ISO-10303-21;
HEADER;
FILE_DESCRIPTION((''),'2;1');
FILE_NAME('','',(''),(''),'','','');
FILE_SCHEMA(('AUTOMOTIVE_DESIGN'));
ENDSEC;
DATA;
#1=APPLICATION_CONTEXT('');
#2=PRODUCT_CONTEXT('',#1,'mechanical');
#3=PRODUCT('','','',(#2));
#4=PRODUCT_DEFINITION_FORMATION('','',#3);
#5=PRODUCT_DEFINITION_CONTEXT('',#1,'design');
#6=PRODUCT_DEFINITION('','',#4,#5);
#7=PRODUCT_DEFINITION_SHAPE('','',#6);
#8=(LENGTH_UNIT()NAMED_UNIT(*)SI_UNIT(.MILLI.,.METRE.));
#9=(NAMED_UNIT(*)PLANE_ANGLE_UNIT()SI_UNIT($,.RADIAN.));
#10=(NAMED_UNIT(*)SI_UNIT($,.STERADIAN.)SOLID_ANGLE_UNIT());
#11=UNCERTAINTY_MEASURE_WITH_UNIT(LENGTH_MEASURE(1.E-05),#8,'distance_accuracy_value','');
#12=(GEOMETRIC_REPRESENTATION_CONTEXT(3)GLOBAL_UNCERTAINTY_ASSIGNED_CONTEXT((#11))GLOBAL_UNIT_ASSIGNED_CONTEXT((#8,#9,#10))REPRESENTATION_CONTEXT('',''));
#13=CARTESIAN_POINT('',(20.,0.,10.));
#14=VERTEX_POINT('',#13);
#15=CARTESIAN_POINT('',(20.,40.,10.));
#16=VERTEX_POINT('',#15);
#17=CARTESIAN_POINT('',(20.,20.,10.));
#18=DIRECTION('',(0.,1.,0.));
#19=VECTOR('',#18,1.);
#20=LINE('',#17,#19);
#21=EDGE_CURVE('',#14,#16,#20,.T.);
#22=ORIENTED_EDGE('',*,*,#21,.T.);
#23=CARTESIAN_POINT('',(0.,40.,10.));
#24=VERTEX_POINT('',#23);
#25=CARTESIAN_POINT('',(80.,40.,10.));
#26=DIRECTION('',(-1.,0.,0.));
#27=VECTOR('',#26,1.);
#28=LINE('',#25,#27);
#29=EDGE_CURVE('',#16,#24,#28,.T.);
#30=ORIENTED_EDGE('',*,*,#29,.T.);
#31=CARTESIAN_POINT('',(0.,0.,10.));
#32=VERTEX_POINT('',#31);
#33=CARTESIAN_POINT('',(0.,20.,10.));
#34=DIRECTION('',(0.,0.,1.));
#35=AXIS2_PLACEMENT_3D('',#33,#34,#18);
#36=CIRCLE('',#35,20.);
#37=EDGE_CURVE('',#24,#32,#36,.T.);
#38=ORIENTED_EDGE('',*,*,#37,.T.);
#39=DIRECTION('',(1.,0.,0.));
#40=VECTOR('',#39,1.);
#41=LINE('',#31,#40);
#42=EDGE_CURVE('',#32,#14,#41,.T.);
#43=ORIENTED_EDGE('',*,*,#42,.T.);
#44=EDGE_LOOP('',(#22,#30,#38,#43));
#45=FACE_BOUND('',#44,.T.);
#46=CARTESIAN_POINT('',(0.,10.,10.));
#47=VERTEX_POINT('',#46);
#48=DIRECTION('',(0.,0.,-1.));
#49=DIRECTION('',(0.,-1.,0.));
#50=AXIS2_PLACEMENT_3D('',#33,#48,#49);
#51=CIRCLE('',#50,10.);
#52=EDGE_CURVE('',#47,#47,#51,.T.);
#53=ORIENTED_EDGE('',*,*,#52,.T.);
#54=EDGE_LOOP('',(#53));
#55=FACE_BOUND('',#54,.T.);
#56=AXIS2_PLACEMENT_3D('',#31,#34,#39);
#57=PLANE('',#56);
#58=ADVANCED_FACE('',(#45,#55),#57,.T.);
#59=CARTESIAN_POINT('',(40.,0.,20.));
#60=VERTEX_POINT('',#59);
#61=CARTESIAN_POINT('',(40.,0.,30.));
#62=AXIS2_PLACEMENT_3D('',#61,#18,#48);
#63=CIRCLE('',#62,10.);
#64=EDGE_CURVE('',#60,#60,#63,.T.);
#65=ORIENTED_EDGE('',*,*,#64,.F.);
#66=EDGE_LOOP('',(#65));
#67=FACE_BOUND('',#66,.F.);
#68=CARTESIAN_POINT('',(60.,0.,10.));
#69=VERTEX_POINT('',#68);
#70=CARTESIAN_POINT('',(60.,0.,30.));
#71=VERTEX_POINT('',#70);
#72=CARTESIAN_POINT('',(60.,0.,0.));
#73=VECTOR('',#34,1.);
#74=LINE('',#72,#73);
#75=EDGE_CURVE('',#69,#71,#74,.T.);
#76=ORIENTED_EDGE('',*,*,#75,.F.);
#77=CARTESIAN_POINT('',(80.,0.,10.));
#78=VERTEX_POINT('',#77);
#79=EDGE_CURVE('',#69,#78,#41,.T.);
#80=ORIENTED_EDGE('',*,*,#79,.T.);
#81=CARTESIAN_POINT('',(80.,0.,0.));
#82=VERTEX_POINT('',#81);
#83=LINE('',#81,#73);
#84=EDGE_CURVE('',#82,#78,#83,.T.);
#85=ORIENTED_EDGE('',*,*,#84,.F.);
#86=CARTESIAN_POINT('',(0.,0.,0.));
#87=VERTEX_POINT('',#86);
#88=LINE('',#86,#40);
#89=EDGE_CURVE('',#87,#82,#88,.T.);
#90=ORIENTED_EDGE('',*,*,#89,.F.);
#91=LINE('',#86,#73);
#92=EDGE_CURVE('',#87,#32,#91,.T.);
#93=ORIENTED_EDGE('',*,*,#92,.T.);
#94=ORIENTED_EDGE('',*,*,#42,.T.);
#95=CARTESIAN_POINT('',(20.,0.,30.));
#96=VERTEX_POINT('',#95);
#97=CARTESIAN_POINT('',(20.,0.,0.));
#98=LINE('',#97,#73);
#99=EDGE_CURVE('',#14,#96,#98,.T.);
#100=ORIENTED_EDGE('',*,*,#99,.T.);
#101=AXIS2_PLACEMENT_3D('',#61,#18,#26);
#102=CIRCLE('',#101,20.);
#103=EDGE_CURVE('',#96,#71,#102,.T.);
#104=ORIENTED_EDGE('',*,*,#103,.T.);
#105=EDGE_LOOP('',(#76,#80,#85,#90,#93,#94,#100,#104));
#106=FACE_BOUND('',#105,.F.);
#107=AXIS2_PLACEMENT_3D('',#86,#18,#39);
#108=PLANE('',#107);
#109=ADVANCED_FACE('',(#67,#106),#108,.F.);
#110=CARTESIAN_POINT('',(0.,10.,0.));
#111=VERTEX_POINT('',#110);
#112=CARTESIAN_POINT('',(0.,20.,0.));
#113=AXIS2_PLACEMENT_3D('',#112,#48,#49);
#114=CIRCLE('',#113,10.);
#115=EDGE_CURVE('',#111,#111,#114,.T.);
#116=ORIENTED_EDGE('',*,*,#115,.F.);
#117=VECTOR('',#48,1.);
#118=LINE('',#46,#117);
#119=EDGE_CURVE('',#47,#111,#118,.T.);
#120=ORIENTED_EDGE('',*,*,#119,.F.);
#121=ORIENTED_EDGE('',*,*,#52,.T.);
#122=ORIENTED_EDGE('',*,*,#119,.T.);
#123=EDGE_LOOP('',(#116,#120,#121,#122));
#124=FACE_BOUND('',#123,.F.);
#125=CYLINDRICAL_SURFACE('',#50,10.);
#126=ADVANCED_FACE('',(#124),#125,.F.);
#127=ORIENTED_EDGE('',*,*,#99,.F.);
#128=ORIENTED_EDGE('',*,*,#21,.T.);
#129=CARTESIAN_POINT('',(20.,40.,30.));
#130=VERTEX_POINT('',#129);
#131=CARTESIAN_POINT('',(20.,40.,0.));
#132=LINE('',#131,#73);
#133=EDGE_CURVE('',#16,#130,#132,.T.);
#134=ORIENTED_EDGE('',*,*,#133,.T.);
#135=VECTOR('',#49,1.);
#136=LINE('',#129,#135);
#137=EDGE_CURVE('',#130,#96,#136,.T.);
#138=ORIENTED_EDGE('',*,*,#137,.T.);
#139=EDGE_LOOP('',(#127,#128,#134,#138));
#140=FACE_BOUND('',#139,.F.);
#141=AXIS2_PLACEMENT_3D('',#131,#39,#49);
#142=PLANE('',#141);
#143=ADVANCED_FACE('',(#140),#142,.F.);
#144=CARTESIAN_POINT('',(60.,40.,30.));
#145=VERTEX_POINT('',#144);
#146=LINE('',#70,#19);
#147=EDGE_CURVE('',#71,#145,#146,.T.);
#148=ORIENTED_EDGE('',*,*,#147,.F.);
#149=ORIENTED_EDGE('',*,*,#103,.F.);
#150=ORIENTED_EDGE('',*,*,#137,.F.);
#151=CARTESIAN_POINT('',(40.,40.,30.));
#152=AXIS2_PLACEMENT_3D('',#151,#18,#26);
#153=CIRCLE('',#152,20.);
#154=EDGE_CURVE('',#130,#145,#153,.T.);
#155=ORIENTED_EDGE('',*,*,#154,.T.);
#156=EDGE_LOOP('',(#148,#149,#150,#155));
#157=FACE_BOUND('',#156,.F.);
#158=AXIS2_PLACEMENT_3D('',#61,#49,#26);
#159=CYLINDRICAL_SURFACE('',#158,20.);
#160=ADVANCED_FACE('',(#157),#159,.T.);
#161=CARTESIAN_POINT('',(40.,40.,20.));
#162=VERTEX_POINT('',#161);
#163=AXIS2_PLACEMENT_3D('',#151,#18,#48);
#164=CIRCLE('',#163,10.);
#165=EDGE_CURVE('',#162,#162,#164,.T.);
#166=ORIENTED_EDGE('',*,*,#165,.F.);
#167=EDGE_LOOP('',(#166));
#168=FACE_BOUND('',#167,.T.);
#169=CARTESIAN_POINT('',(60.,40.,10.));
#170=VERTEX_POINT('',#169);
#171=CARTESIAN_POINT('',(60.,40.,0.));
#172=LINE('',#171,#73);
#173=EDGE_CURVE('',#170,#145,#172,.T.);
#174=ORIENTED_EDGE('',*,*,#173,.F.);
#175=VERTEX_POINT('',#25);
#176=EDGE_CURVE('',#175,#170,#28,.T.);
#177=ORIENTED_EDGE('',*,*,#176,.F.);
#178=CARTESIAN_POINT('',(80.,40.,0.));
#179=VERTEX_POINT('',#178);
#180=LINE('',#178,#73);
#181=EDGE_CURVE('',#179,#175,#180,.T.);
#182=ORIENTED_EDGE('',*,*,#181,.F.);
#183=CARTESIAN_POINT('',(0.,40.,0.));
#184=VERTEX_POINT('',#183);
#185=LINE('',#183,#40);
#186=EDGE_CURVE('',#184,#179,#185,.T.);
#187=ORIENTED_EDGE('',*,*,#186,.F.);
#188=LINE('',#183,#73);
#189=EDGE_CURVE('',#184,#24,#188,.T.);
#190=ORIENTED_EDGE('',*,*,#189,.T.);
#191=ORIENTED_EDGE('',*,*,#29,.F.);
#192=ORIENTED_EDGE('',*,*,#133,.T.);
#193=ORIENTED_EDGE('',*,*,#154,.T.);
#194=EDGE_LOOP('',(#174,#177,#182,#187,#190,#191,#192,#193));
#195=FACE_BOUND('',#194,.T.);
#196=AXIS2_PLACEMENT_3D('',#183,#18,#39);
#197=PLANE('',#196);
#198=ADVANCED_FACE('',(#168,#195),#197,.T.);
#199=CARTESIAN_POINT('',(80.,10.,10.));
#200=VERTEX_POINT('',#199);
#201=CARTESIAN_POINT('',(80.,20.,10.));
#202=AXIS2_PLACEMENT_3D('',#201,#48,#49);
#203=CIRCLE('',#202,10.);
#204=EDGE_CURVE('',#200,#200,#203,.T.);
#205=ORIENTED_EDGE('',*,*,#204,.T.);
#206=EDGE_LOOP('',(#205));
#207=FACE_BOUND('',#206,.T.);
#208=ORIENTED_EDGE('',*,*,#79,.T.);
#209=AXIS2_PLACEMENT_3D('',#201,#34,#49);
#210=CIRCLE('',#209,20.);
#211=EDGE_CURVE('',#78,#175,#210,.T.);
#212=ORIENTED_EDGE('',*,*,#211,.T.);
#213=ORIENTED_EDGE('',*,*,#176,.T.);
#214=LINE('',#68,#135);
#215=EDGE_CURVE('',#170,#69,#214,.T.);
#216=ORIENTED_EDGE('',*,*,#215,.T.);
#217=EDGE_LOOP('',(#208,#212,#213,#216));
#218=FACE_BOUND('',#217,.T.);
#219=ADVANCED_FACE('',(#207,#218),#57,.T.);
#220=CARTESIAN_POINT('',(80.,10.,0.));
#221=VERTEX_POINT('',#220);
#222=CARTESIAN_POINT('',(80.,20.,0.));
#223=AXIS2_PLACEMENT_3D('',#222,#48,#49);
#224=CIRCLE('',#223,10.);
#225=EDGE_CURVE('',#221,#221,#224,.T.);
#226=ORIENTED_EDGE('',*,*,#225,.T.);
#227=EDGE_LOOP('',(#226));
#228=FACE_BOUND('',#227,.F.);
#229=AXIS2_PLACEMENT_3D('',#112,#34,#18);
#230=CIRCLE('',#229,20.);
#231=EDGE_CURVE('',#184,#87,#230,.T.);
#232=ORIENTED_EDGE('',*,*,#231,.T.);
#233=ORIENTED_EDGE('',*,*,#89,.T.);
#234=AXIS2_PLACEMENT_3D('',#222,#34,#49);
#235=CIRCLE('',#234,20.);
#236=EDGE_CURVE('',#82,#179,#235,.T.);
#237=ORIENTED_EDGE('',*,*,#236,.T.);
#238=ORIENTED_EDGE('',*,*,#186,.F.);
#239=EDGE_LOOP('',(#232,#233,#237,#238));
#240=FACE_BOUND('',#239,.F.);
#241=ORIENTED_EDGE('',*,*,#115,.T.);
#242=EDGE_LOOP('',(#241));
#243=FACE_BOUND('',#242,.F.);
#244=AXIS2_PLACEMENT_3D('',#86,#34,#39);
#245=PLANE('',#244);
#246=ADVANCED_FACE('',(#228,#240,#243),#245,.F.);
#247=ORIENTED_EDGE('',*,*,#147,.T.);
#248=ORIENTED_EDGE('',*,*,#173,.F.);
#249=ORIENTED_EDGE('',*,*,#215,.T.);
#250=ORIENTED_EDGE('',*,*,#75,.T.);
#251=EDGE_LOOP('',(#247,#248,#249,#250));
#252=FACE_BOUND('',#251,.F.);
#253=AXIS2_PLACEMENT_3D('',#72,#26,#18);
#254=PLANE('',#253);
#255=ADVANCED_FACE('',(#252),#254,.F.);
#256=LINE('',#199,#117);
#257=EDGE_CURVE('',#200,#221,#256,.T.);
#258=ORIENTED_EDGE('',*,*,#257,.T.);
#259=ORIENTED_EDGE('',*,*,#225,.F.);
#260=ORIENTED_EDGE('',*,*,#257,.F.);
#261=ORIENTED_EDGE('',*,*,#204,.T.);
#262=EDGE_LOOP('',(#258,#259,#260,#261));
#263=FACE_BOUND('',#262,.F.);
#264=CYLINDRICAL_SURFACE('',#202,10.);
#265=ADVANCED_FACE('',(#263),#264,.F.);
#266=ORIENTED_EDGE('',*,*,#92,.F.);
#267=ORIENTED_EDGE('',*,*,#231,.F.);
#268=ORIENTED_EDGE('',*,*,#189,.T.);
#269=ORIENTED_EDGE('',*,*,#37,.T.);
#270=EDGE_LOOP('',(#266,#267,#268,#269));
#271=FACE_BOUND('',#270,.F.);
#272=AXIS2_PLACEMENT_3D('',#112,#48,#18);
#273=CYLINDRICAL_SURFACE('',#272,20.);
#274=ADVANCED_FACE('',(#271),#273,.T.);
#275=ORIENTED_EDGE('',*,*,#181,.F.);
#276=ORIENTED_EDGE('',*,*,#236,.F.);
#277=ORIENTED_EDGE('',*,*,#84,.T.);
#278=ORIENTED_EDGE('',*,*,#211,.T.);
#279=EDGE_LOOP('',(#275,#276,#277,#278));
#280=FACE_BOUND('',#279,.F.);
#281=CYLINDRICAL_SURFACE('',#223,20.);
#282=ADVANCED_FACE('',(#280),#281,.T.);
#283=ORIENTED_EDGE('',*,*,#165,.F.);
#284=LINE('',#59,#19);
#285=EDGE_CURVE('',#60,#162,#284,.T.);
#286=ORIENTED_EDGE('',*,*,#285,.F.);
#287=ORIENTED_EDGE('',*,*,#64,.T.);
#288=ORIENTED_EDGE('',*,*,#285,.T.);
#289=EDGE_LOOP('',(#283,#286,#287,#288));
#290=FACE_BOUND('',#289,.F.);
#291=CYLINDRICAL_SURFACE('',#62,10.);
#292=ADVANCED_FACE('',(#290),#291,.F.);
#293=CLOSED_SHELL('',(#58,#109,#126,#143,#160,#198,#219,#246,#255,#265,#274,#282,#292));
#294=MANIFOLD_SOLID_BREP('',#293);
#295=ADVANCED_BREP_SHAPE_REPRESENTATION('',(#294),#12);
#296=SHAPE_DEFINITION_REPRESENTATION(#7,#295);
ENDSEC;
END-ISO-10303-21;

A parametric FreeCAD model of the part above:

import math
import FreeCAD as App
import Part
import Sketcher
from FreeCAD import Vector
Q = App.Units.Quantity

doc = App.newDocument("Part")
body = doc.addObject("PartDesign::Body", "Body")

sketch1 = body.newObject("Sketcher::SketchObject", "Sketch")
sketch1.AttachmentSupport = (doc.getObject("XY_Plane"), [""])
sketch1.MapMode = "FlatFace"
sketch1.addGeometry([
    Part.ArcOfCircle(Part.Circle(Vector(80, 20, 0), Vector(0, 0, 1), 20), math.radians(-90), math.radians(90)),
    Part.LineSegment(Vector(80, 40, 0), Vector(0, 40, 0)),
    Part.ArcOfCircle(Part.Circle(Vector(0, 20, 0), Vector(0, 0, 1), 20), math.radians(90), math.radians(270)),
    Part.LineSegment(Vector(0, 0, 0), Vector(80, 0, 0)),
], False)
sketch1.addConstraint([
    Sketcher.Constraint("Tangent", 0, 2, 1, 1),
    Sketcher.Constraint("Tangent", 1, 2, 2, 1),
    Sketcher.Constraint("Tangent", 2, 2, 3, 1),
    Sketcher.Constraint("Tangent", 3, 2, 0, 1),
    Sketcher.Constraint("Horizontal", 1),
    Sketcher.Constraint("Horizontal", 3),
    Sketcher.Constraint("Coincident", 2, 2, -1, 1),
    Sketcher.Constraint("Radius", 0, Q("20 mm")),
    Sketcher.Constraint("DistanceX", 1, 2, 1, 1, Q("80 mm")),
])
pad1 = body.newObject("PartDesign::Pad", "Pad")
pad1.Profile = sketch1
pad1.Length = 10

sketch2 = body.newObject("Sketcher::SketchObject", "Sketch001")
sketch2.AttachmentSupport = (doc.getObject("XY_Plane"), [""])
sketch2.MapMode = "FlatFace"
sketch2.AttachmentOffset = App.Placement(Vector(0, 0, 10), App.Rotation())
sketch2.addGeometry(Part.Circle(Vector(0, 20, 0), Vector(0, 0, 1), 10), False)
sketch2.addConstraint([
    Sketcher.Constraint("PointOnObject", 0, 3, -2),
    Sketcher.Constraint("Diameter", 0, Q("20 mm")),
    Sketcher.Constraint("DistanceY", -1, 1, 0, 3, Q("20 mm")),
])
doc.recompute()
hole = body.newObject("PartDesign::Hole", "Hole")
hole.Profile = sketch2
hole.ThreadType = "None"
hole.Diameter = 20
hole.DepthType = "Dimension"
hole.Depth = 20
hole.DrillPoint = "Angled"
hole.DrillPointAngle = 118

sketch3 = body.newObject("Sketcher::SketchObject", "Sketch002")
sketch3.AttachmentSupport = (doc.getObject("XY_Plane"), [""])
sketch3.MapMode = "FlatFace"
sketch3.AttachmentOffset = App.Placement(Vector(0, 0, 10), App.Rotation())
sketch3.addGeometry(Part.Circle(Vector(80, 20, 0), Vector(0, 0, 1), 10), False)
sketch3.addConstraint([
    Sketcher.Constraint("Diameter", 0, Q("20 mm")),
    Sketcher.Constraint("DistanceX", -1, 1, 0, 3, Q("80 mm")),
    Sketcher.Constraint("DistanceY", -1, 1, 0, 3, Q("20 mm")),
])
doc.recompute()
hole2 = body.newObject("PartDesign::Hole", "Hole001")
hole2.Profile = sketch3
hole2.ThreadType = "None"
hole2.Diameter = 20
hole2.DepthType = "Dimension"
hole2.Depth = 20
hole2.DrillPoint = "Angled"
hole2.DrillPointAngle = 118

sketch4 = body.newObject("Sketcher::SketchObject", "Sketch003")
sketch4.AttachmentSupport = (doc.getObject("XY_Plane"), [""])
sketch4.MapMode = "FlatFace"
sketch4.addGeometry([
    Part.LineSegment(Vector(20, 40, 0), Vector(20, 0, 0)),
    Part.LineSegment(Vector(20, 0, 0), Vector(60, 0, 0)),
    Part.LineSegment(Vector(60, 0, 0), Vector(60, 40, 0)),
    Part.LineSegment(Vector(60, 40, 0), Vector(20, 40, 0)),
], False)
sketch4.addConstraint([
    Sketcher.Constraint("Coincident", 0, 2, 1, 1),
    Sketcher.Constraint("Coincident", 1, 2, 2, 1),
    Sketcher.Constraint("Coincident", 2, 2, 3, 1),
    Sketcher.Constraint("Coincident", 3, 2, 0, 1),
    Sketcher.Constraint("Vertical", 0),
    Sketcher.Constraint("Horizontal", 1),
    Sketcher.Constraint("Vertical", 2),
    Sketcher.Constraint("Horizontal", 3),
    Sketcher.Constraint("PointOnObject", 0, 2, -1),
    Sketcher.Constraint("Equal", 3, 0),
    Sketcher.Constraint("DistanceX", 1, 1, 1, 2, Q("40 mm")),
    Sketcher.Constraint("DistanceX", -1, 1, 0, 2, Q("20 mm")),
])
pad2 = body.newObject("PartDesign::Pad", "Pad001")
pad2.Profile = sketch4
pad2.Length = 30

sketch5 = body.newObject("Sketcher::SketchObject", "Sketch004")
sketch5.AttachmentSupport = (doc.getObject("XZ_Plane"), [""])
sketch5.MapMode = "FlatFace"
sketch5.addGeometry([
    Part.ArcOfCircle(Part.Circle(Vector(40, 30, 0), Vector(0, 0, 1), 20), math.radians(0), math.radians(180)),
    Part.LineSegment(Vector(60, 30, 0), Vector(20, 30, 0)),
], False)
sketch5.addConstraint([
    Sketcher.Constraint("Coincident", 0, 1, 1, 1),
    Sketcher.Constraint("Coincident", 1, 2, 0, 2),
    Sketcher.Constraint("Horizontal", 1),
    Sketcher.Constraint("Radius", 0, Q("20 mm")),
    Sketcher.Constraint("DistanceX", -1, 1, 0, 3, Q("40 mm")),
    Sketcher.Constraint("DistanceY", -1, 1, 0, 3, Q("30 mm")),
    Sketcher.Constraint("DistanceY", -1, 1, 0, 1, Q("30 mm")),
])
pad3 = body.newObject("PartDesign::Pad", "Pad002")
pad3.Profile = sketch5
pad3.Length = 40
pad3.Reversed = True

sketch6 = body.newObject("Sketcher::SketchObject", "Sketch005")
sketch6.AttachmentSupport = (doc.getObject("XZ_Plane"), [""])
sketch6.MapMode = "FlatFace"
sketch6.addGeometry(Part.Circle(Vector(40, 30, 0), Vector(0, 0, 1), 10), False)
sketch6.addConstraint([
    Sketcher.Constraint("Diameter", 0, Q("20 mm")),
    Sketcher.Constraint("DistanceX", -1, 1, 0, 3, Q("40 mm")),
    Sketcher.Constraint("DistanceY", -1, 1, 0, 3, Q("30 mm")),
])
doc.recompute()
hole3 = body.newObject("PartDesign::Hole", "Hole002")
hole3.Profile = sketch6
hole3.ThreadType = "None"
hole3.Diameter = 20
hole3.DepthType = "Dimension"
hole3.Depth = 40
hole3.DrillPoint = "Angled"
hole3.DrillPointAngle = 118

doc.recompute()
